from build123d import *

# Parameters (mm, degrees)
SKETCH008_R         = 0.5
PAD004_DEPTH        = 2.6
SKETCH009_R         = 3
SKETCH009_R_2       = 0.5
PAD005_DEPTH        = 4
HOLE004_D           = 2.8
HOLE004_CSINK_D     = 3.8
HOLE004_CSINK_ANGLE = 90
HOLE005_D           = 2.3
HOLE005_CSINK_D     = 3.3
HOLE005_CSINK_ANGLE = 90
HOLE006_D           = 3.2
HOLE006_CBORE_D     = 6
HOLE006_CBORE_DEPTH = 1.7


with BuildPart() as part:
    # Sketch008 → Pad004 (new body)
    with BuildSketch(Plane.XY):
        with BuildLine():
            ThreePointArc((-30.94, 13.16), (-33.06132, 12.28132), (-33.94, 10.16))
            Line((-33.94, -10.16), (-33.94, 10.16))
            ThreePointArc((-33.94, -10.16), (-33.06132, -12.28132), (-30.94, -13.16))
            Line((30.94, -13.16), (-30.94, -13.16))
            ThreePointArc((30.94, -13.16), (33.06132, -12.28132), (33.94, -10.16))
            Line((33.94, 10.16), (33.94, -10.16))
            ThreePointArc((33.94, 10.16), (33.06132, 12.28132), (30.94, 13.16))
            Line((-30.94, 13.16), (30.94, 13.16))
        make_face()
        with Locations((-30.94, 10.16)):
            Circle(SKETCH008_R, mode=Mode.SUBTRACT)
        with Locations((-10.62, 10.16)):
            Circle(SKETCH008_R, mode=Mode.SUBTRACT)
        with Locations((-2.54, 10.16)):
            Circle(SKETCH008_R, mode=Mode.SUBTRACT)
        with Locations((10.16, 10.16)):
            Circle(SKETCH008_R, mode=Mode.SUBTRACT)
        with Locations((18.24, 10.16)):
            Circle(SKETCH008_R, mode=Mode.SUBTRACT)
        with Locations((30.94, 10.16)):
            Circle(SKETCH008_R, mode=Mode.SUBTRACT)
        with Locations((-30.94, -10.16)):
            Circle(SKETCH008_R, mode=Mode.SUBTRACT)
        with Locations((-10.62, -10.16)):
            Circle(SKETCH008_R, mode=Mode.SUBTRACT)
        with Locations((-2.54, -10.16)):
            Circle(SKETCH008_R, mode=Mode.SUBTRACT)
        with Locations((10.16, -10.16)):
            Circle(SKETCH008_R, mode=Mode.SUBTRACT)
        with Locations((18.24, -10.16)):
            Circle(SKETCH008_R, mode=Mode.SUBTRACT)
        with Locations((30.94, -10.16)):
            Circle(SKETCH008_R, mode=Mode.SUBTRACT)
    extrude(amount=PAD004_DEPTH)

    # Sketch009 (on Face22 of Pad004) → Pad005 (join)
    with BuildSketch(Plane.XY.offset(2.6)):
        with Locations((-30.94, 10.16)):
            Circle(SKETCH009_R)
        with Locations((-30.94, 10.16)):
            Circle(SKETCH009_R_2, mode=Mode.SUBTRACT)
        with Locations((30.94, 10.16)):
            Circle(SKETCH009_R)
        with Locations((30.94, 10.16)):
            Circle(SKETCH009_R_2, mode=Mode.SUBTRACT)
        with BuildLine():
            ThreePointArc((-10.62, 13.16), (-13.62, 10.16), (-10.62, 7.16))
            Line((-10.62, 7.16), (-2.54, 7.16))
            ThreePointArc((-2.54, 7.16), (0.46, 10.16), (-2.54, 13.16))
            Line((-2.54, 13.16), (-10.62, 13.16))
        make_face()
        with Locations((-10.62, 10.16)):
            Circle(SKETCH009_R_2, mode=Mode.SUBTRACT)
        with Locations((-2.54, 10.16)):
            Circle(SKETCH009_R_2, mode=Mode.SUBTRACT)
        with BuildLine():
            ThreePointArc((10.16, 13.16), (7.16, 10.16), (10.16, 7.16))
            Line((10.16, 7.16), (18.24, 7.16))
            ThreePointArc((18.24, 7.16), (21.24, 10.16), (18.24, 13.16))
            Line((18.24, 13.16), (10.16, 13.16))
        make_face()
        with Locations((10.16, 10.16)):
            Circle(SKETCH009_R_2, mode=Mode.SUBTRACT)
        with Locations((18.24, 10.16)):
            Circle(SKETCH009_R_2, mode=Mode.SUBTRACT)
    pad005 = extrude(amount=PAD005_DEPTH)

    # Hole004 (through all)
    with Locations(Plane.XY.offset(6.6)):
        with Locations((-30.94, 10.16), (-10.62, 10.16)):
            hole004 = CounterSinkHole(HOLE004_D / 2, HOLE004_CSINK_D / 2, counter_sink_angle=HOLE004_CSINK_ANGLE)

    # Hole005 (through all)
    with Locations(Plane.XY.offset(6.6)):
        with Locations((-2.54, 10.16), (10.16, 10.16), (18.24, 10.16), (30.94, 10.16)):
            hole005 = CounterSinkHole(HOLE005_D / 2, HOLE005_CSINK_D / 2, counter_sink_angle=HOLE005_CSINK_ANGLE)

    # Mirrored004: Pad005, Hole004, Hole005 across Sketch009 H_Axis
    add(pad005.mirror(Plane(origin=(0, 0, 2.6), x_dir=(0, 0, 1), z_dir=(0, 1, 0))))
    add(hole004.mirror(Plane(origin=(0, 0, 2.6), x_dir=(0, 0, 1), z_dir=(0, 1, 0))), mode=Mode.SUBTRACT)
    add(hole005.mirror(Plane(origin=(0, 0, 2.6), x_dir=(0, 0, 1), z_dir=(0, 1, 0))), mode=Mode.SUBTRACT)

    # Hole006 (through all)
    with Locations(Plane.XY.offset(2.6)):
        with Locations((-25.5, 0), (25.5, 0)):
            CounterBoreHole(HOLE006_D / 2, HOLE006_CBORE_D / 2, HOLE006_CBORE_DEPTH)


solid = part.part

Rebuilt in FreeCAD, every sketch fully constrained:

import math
import FreeCAD as App
import Part
import Sketcher

doc = App.newDocument("Part")
body = doc.addObject("PartDesign::Body", "Body")

# Sketch on XY plane
sketch1 = body.newObject("Sketcher::SketchObject", "Sketch")
sketch1.AttachmentSupport = (doc.getObject("XY_Plane"), [""])
sketch1.MapMode = "FlatFace"
sketch1.addGeometry(Part.ArcOfCircle(Part.Circle(App.Vector(-30.939999, 10.159999, 0), App.Vector(0, 0, 1), 3.000001), math.radians(90.000022), math.radians(179.999978)), False)
sketch1.addGeometry(Part.LineSegment(App.Vector(-33.94, 10.16, 0), App.Vector(-33.94, -10.16, 0)), False)
sketch1.addGeometry(Part.ArcOfCircle(Part.Circle(App.Vector(-30.939999, -10.159999, 0), App.Vector(0, 0, 1), 3.000001), math.radians(-179.999978), math.radians(-90.000022)), False)
sketch1.addGeometry(Part.LineSegment(App.Vector(-30.94, -13.16, 0), App.Vector(30.94, -13.16, 0)), False)
sketch1.addGeometry(Part.ArcOfCircle(Part.Circle(App.Vector(30.939999, -10.159999, 0), App.Vector(0, 0, 1), 3.000001), math.radians(-89.999978), math.radians(-0.000022)), False)
sketch1.addGeometry(Part.LineSegment(App.Vector(33.94, -10.16, 0), App.Vector(33.94, 10.16, 0)), False)
sketch1.addGeometry(Part.ArcOfCircle(Part.Circle(App.Vector(30.939999, 10.159999, 0), App.Vector(0, 0, 1), 3.000001), math.radians(0.000022), math.radians(89.999978)), False)
sketch1.addGeometry(Part.LineSegment(App.Vector(30.94, 13.16, 0), App.Vector(-30.94, 13.16, 0)), False)
sketch1.addGeometry(Part.Circle(App.Vector(-30.94, -10.16, 0), App.Vector(0, 0, 1), 0.5), False)
sketch1.addGeometry(Part.Circle(App.Vector(-10.62, -10.16, 0), App.Vector(0, 0, 1), 0.5), False)
sketch1.addGeometry(Part.Circle(App.Vector(-2.54, -10.16, 0), App.Vector(0, 0, 1), 0.5), False)
sketch1.addGeometry(Part.Circle(App.Vector(10.16, -10.16, 0), App.Vector(0, 0, 1), 0.5), False)
sketch1.addGeometry(Part.Circle(App.Vector(18.24, -10.16, 0), App.Vector(0, 0, 1), 0.5), False)
sketch1.addGeometry(Part.Circle(App.Vector(30.94, -10.16, 0), App.Vector(0, 0, 1), 0.5), False)
sketch1.addGeometry(Part.Circle(App.Vector(-30.94, 10.16, 0), App.Vector(0, 0, 1), 0.5), False)
sketch1.addGeometry(Part.Circle(App.Vector(-10.62, 10.16, 0), App.Vector(0, 0, 1), 0.5), False)
sketch1.addGeometry(Part.Circle(App.Vector(-2.54, 10.16, 0), App.Vector(0, 0, 1), 0.5), False)
sketch1.addGeometry(Part.Circle(App.Vector(10.16, 10.16, 0), App.Vector(0, 0, 1), 0.5), False)
sketch1.addGeometry(Part.Circle(App.Vector(18.24, 10.16, 0), App.Vector(0, 0, 1), 0.5), False)
sketch1.addGeometry(Part.Circle(App.Vector(30.94, 10.16, 0), App.Vector(0, 0, 1), 0.5), False)
sketch1.addConstraint(Sketcher.Constraint("Tangent", 0, 2, 1, 1))
sketch1.addConstraint(Sketcher.Constraint("Tangent", 1, 2, 2, 1))
sketch1.addConstraint(Sketcher.Constraint("Tangent", 2, 2, 3, 1))
sketch1.addConstraint(Sketcher.Constraint("Tangent", 3, 2, 4, 1))
sketch1.addConstraint(Sketcher.Constraint("Tangent", 4, 2, 5, 1))
sketch1.addConstraint(Sketcher.Constraint("Tangent", 5, 2, 6, 1))
sketch1.addConstraint(Sketcher.Constraint("Tangent", 6, 2, 7, 1))
sketch1.addConstraint(Sketcher.Constraint("Tangent", 7, 2, 0, 1))
sketch1.addConstraint(Sketcher.Constraint("Vertical", 1))
sketch1.addConstraint(Sketcher.Constraint("Horizontal", 3))
sketch1.addConstraint(Sketcher.Constraint("Vertical", 5))
sketch1.addConstraint(Sketcher.Constraint("Horizontal", 7))
sketch1.addConstraint(Sketcher.Constraint("Coincident", 8, 3, 2, 3))
sketch1.addConstraint(Sketcher.Constraint("Coincident", 13, 3, 4, 3))
sketch1.addConstraint(Sketcher.Constraint("Coincident", 14, 3, 0, 3))
sketch1.addConstraint(Sketcher.Constraint("Coincident", 19, 3, 6, 3))
sketch1.addConstraint(Sketcher.Constraint("Equal", 0, 2))
sketch1.addConstraint(Sketcher.Constraint("Equal", 2, 4))
sketch1.addConstraint(Sketcher.Constraint("Equal", 4, 6))
sketch1.addConstraint(Sketcher.Constraint("Equal", 8, 9))
sketch1.addConstraint(Sketcher.Constraint("Equal", 9, 10))
sketch1.addConstraint(Sketcher.Constraint("Equal", 10, 11))
sketch1.addConstraint(Sketcher.Constraint("Equal", 11, 12))
sketch1.addConstraint(Sketcher.Constraint("Equal", 12, 13))
sketch1.addConstraint(Sketcher.Constraint("Equal", 13, 14))
sketch1.addConstraint(Sketcher.Constraint("Equal", 14, 15))
sketch1.addConstraint(Sketcher.Constraint("Equal", 15, 16))
sketch1.addConstraint(Sketcher.Constraint("Equal", 16, 17))
sketch1.addConstraint(Sketcher.Constraint("Equal", 17, 18))
sketch1.addConstraint(Sketcher.Constraint("Equal", 18, 19))
sketch1.addConstraint(Sketcher.Constraint("Symmetric", 0, 3, 4, 3, -1, 1))
sketch1.addConstraint(Sketcher.Constraint("Symmetric", 9, 3, 15, 3, -1))
sketch1.addConstraint(Sketcher.Constraint("Symmetric", 10, 3, 16, 3, -1))
sketch1.addConstraint(Sketcher.Constraint("Symmetric", 11, 3, 17, 3, -1))
sketch1.addConstraint(Sketcher.Constraint("Symmetric", 12, 3, 18, 3, -1))
sketch1.addConstraint(Sketcher.Constraint("Horizontal", 8, 3, 9, 3))
sketch1.addConstraint(Sketcher.Constraint("Horizontal", 9, 3, 10, 3))
sketch1.addConstraint(Sketcher.Constraint("Horizontal", 10, 3, 11, 3))
sketch1.addConstraint(Sketcher.Constraint("Horizontal", 11, 3, 12, 3))
sketch1.addConstraint(Sketcher.Constraint("Diameter", 8, 1.0))
sketch1.addConstraint(Sketcher.Constraint("Radius", 0, 3.000001))
sketch1.addConstraint(Sketcher.Constraint("DistanceX", 3, 1, 3, 2, 61.88))
sketch1.addConstraint(Sketcher.Constraint("DistanceY", 1, 2, 1, 1, 20.32))
sketch1.addConstraint(Sketcher.Constraint("DistanceX", 2, 3, 10, 3, 28.399999))
sketch1.addConstraint(Sketcher.Constraint("DistanceX", 10, 3, 11, 3, 12.7))
sketch1.addConstraint(Sketcher.Constraint("DistanceX", 12, 3, 4, 3, 12.699999))
sketch1.addConstraint(Sketcher.Constraint("DistanceX", 9, 3, -1, 1, 10.62))
pad1 = body.newObject("PartDesign::Pad", "Pad")
pad1.Profile = sketch1
pad1.Length = 2.6

# Sketch on XY plane
sketch2 = body.newObject("Sketcher::SketchObject", "Sketch001")
sketch2.AttachmentSupport = (doc.getObject("XY_Plane"), [""])
sketch2.MapMode = "FlatFace"
sketch2.AttachmentOffset = App.Placement(App.Vector(0, 0, 2.6), App.Rotation())
sketch2.addGeometry(Part.Circle(App.Vector(-30.94, 10.16, 0), App.Vector(0, 0, 1), 3), False)
sketch2.addGeometry(Part.Circle(App.Vector(-30.94, 10.16, 0), App.Vector(0, 0, 1), 0.5), False)
sketch2.addGeometry(Part.Circle(App.Vector(30.94, 10.16, 0), App.Vector(0, 0, 1), 3), False)
sketch2.addGeometry(Part.Circle(App.Vector(30.94, 10.16, 0), App.Vector(0, 0, 1), 0.5), False)
sketch2.addGeometry(Part.ArcOfCircle(Part.Circle(App.Vector(-10.62, 10.16, 0), App.Vector(0, 0, 1), 3), math.radians(90), math.radians(270)), False)
sketch2.addGeometry(Part.LineSegment(App.Vector(-10.62, 7.16, 0), App.Vector(-2.54, 7.16, 0)), False)
sketch2.addGeometry(Part.ArcOfCircle(Part.Circle(App.Vector(-2.54, 10.16, 0), App.Vector(0, 0, 1), 3), math.radians(-90), math.radians(90)), False)
sketch2.addGeometry(Part.LineSegment(App.Vector(-2.54, 13.16, 0), App.Vector(-10.62, 13.16, 0)), False)
sketch2.addGeometry(Part.Circle(App.Vector(-10.62, 10.16, 0), App.Vector(0, 0, 1), 0.5), False)
sketch2.addGeometry(Part.Circle(App.Vector(-2.54, 10.16, 0), App.Vector(0, 0, 1), 0.5), False)
sketch2.addGeometry(Part.ArcOfCircle(Part.Circle(App.Vector(10.16, 10.16, 0), App.Vector(0, 0, 1), 3), math.radians(90), math.radians(270)), False)
sketch2.addGeometry(Part.LineSegment(App.Vector(10.16, 7.16, 0), App.Vector(18.24, 7.16, 0)), False)
sketch2.addGeometry(Part.ArcOfCircle(Part.Circle(App.Vector(18.24, 10.16, 0), App.Vector(0, 0, 1), 3), math.radians(-90), math.radians(90)), False)
sketch2.addGeometry(Part.LineSegment(App.Vector(18.24, 13.16, 0), App.Vector(10.16, 13.16, 0)), False)
sketch2.addGeometry(Part.Circle(App.Vector(10.16, 10.16, 0), App.Vector(0, 0, 1), 0.5), False)
sketch2.addGeometry(Part.Circle(App.Vector(18.24, 10.16, 0), App.Vector(0, 0, 1), 0.5), False)
sketch2.addConstraint(Sketcher.Constraint("Tangent", 4, 2, 5, 1))
sketch2.addConstraint(Sketcher.Constraint("Tangent", 5, 2, 6, 1))
sketch2.addConstraint(Sketcher.Constraint("Tangent", 6, 2, 7, 1))
sketch2.addConstraint(Sketcher.Constraint("Tangent", 7, 2, 4, 1))
sketch2.addConstraint(Sketcher.Constraint("Tangent", 10, 2, 11, 1))
sketch2.addConstraint(Sketcher.Constraint("Tangent", 11, 2, 12, 1))
sketch2.addConstraint(Sketcher.Constraint("Tangent", 12, 2, 13, 1))
sketch2.addConstraint(Sketcher.Constraint("Tangent", 13, 2, 10, 1))
sketch2.addConstraint(Sketcher.Constraint("Horizontal", 5))
sketch2.addConstraint(Sketcher.Constraint("Horizontal", 7))
sketch2.addConstraint(Sketcher.Constraint("Horizontal", 11))
sketch2.addConstraint(Sketcher.Constraint("Horizontal", 13))
sketch2.addConstraint(Sketcher.Constraint("Coincident", 1, 3, 0, 3))
sketch2.addConstraint(Sketcher.Constraint("Coincident", 3, 3, 2, 3))
sketch2.addConstraint(Sketcher.Constraint("Coincident", 8, 3, 4, 3))
sketch2.addConstraint(Sketcher.Constraint("Coincident", 9, 3, 6, 3))
sketch2.addConstraint(Sketcher.Constraint("Coincident", 14, 3, 10, 3))
sketch2.addConstraint(Sketcher.Constraint("Coincident", 15, 3, 12, 3))
sketch2.addConstraint(Sketcher.Constraint("Equal", 0, 2))
sketch2.addConstraint(Sketcher.Constraint("Equal", 1, 3))
sketch2.addConstraint(Sketcher.Constraint("Equal", 2, 4))
sketch2.addConstraint(Sketcher.Constraint("Equal", 3, 8))
sketch2.addConstraint(Sketcher.Constraint("Equal", 8, 9))
sketch2.addConstraint(Sketcher.Constraint("Equal", 6, 10))
sketch2.addConstraint(Sketcher.Constraint("Equal", 9, 14))
sketch2.addConstraint(Sketcher.Constraint("Equal", 14, 15))
sketch2.addConstraint(Sketcher.Constraint("Symmetric", 0, 3, 2, 3, -2))
sketch2.addConstraint(Sketcher.Constraint("Horizontal", 3, 3, 4, 3))
sketch2.addConstraint(Sketcher.Constraint("Horizontal", 9, 3, 10, 3))
sketch2.addConstraint(Sketcher.Constraint("Equal", 7, 11))
sketch2.addConstraint(Sketcher.Constraint("Diameter", 0, 6.0))
sketch2.addConstraint(Sketcher.Constraint("Diameter", 1, 1.0))
sketch2.addConstraint(Sketcher.Constraint("DistanceX", 5, 1, 5, 2, 8.08))
sketch2.addConstraint(Sketcher.Constraint("DistanceX", 0, 3, 6, 3, 28.4))
sketch2.addConstraint(Sketcher.Constraint("DistanceX", 6, 3, 10, 3, 12.7))
sketch2.addConstraint(Sketcher.Constraint("DistanceX", 12, 3, 2, 3, 12.7))
sketch2.addConstraint(Sketcher.Constraint("DistanceY", -1, 1, 0, 3, 10.16))
pad2 = body.newObject("PartDesign::Pad", "Pad001")
pad2.Profile = sketch2
pad2.Length = 4

# Sketch on XY plane
sketch3 = body.newObject("Sketcher::SketchObject", "Sketch002")
sketch3.AttachmentSupport = (doc.getObject("XY_Plane"), [""])
sketch3.MapMode = "FlatFace"
sketch3.AttachmentOffset = App.Placement(App.Vector(0, 0, 6.6), App.Rotation())
sketch3.addGeometry(Part.Circle(App.Vector(-30.94, 10.16, 0), App.Vector(0, 0, 1), 1.4), False)
sketch3.addGeometry(Part.Circle(App.Vector(-10.62, 10.16, 0), App.Vector(0, 0, 1), 1.4), False)
sketch3.addConstraint(Sketcher.Constraint("Equal", 0, 1))
sketch3.addConstraint(Sketcher.Constraint("Horizontal", 0, 3, 1, 3))
sketch3.addConstraint(Sketcher.Constraint("Diameter", 0, 2.8))
sketch3.addConstraint(Sketcher.Constraint("DistanceX", 0, 3, -1, 1, 30.94))
sketch3.addConstraint(Sketcher.Constraint("DistanceY", -1, 1, 0, 3, 10.16))
sketch3.addConstraint(Sketcher.Constraint("DistanceX", 1, 3, -1, 1, 10.62))
doc.recompute()
hole = body.newObject("PartDesign::Hole", "Hole")
hole.Profile = sketch3
hole.ThreadType = "None"
hole.Diameter = 2.8
hole.DepthType = "ThroughAll"
hole.HoleCutType = "Countersink"
hole.HoleCutDiameter = 3.8
hole.HoleCutCountersinkAngle = 90

# Sketch on XY plane
sketch4 = body.newObject("Sketcher::SketchObject", "Sketch003")
sketch4.AttachmentSupport = (doc.getObject("XY_Plane"), [""])
sketch4.MapMode = "FlatFace"
sketch4.AttachmentOffset = App.Placement(App.Vector(0, 0, 6.6), App.Rotation())
sketch4.addGeometry(Part.Circle(App.Vector(-2.54, 10.16, 0), App.Vector(0, 0, 1), 1.15), False)
sketch4.addGeometry(Part.Circle(App.Vector(10.16, 10.16, 0), App.Vector(0, 0, 1), 1.15), False)
sketch4.addGeometry(Part.Circle(App.Vector(18.24, 10.16, 0), App.Vector(0, 0, 1), 1.15), False)
sketch4.addGeometry(Part.Circle(App.Vector(30.94, 10.16, 0), App.Vector(0, 0, 1), 1.15), False)
sketch4.addConstraint(Sketcher.Constraint("Equal", 0, 1))
sketch4.addConstraint(Sketcher.Constraint("Equal", 1, 2))
sketch4.addConstraint(Sketcher.Constraint("Equal", 2, 3))
sketch4.addConstraint(Sketcher.Constraint("Horizontal", 0, 3, 1, 3))
sketch4.addConstraint(Sketcher.Constraint("Horizontal", 1, 3, 2, 3))
sketch4.addConstraint(Sketcher.Constraint("Horizontal", 2, 3, 3, 3))
sketch4.addConstraint(Sketcher.Constraint("Diameter", 0, 2.3))
sketch4.addConstraint(Sketcher.Constraint("DistanceX", 0, 3, 1, 3, 12.7))
sketch4.addConstraint(Sketcher.Constraint("DistanceX", 2, 3, 3, 3, 12.7))
sketch4.addConstraint(Sketcher.Constraint("DistanceX", 0, 3, -1, 1, 2.54))
sketch4.addConstraint(Sketcher.Constraint("DistanceY", -1, 1, 0, 3, 10.16))
sketch4.addConstraint(Sketcher.Constraint("DistanceX", -1, 1, 2, 3, 18.24))
doc.recompute()
hole2 = body.newObject("PartDesign::Hole", "Hole001")
hole2.Profile = sketch4
hole2.ThreadType = "None"
hole2.Diameter = 2.3
hole2.DepthType = "ThroughAll"
hole2.HoleCutType = "Countersink"
hole2.HoleCutDiameter = 3.3
hole2.HoleCutCountersinkAngle = 90
doc.recompute()

mirrored = body.newObject("PartDesign::Mirrored", "Mirrored")
mirrored.Originals = [pad2, hole, hole2]
mirrored.MirrorPlane = (doc.getObject("XZ_Plane"), [""])
body.Tip = mirrored

# Sketch on XY plane
sketch5 = body.newObject("Sketcher::SketchObject", "Sketch004")
sketch5.AttachmentSupport = (doc.getObject("XY_Plane"), [""])
sketch5.MapMode = "FlatFace"
sketch5.AttachmentOffset = App.Placement(App.Vector(0, 0, 2.6), App.Rotation())
sketch5.addGeometry(Part.Circle(App.Vector(-25.5, 0, 0), App.Vector(0, 0, 1), 1.6), False)
sketch5.addGeometry(Part.Circle(App.Vector(25.5, 0, 0), App.Vector(0, 0, 1), 1.6), False)
sketch5.addConstraint(Sketcher.Constraint("Equal", 0, 1))
sketch5.addConstraint(Sketcher.Constraint("Symmetric", 0, 3, 1, 3, -1, 1))
sketch5.addConstraint(Sketcher.Constraint("PointOnObject", 0, 3, -1))
sketch5.addConstraint(Sketcher.Constraint("Diameter", 0, 3.2))
sketch5.addConstraint(Sketcher.Constraint("DistanceX", 0, 3, 1, 3, 51.0))
doc.recompute()
hole3 = body.newObject("PartDesign::Hole", "Hole002")
hole3.Profile = sketch5
hole3.ThreadType = "None"
hole3.Diameter = 3.2
hole3.DepthType = "ThroughAll"
hole3.HoleCutType = "Counterbore"
hole3.HoleCutDiameter = 6
hole3.HoleCutDepth = 1.7

doc.recompute()
